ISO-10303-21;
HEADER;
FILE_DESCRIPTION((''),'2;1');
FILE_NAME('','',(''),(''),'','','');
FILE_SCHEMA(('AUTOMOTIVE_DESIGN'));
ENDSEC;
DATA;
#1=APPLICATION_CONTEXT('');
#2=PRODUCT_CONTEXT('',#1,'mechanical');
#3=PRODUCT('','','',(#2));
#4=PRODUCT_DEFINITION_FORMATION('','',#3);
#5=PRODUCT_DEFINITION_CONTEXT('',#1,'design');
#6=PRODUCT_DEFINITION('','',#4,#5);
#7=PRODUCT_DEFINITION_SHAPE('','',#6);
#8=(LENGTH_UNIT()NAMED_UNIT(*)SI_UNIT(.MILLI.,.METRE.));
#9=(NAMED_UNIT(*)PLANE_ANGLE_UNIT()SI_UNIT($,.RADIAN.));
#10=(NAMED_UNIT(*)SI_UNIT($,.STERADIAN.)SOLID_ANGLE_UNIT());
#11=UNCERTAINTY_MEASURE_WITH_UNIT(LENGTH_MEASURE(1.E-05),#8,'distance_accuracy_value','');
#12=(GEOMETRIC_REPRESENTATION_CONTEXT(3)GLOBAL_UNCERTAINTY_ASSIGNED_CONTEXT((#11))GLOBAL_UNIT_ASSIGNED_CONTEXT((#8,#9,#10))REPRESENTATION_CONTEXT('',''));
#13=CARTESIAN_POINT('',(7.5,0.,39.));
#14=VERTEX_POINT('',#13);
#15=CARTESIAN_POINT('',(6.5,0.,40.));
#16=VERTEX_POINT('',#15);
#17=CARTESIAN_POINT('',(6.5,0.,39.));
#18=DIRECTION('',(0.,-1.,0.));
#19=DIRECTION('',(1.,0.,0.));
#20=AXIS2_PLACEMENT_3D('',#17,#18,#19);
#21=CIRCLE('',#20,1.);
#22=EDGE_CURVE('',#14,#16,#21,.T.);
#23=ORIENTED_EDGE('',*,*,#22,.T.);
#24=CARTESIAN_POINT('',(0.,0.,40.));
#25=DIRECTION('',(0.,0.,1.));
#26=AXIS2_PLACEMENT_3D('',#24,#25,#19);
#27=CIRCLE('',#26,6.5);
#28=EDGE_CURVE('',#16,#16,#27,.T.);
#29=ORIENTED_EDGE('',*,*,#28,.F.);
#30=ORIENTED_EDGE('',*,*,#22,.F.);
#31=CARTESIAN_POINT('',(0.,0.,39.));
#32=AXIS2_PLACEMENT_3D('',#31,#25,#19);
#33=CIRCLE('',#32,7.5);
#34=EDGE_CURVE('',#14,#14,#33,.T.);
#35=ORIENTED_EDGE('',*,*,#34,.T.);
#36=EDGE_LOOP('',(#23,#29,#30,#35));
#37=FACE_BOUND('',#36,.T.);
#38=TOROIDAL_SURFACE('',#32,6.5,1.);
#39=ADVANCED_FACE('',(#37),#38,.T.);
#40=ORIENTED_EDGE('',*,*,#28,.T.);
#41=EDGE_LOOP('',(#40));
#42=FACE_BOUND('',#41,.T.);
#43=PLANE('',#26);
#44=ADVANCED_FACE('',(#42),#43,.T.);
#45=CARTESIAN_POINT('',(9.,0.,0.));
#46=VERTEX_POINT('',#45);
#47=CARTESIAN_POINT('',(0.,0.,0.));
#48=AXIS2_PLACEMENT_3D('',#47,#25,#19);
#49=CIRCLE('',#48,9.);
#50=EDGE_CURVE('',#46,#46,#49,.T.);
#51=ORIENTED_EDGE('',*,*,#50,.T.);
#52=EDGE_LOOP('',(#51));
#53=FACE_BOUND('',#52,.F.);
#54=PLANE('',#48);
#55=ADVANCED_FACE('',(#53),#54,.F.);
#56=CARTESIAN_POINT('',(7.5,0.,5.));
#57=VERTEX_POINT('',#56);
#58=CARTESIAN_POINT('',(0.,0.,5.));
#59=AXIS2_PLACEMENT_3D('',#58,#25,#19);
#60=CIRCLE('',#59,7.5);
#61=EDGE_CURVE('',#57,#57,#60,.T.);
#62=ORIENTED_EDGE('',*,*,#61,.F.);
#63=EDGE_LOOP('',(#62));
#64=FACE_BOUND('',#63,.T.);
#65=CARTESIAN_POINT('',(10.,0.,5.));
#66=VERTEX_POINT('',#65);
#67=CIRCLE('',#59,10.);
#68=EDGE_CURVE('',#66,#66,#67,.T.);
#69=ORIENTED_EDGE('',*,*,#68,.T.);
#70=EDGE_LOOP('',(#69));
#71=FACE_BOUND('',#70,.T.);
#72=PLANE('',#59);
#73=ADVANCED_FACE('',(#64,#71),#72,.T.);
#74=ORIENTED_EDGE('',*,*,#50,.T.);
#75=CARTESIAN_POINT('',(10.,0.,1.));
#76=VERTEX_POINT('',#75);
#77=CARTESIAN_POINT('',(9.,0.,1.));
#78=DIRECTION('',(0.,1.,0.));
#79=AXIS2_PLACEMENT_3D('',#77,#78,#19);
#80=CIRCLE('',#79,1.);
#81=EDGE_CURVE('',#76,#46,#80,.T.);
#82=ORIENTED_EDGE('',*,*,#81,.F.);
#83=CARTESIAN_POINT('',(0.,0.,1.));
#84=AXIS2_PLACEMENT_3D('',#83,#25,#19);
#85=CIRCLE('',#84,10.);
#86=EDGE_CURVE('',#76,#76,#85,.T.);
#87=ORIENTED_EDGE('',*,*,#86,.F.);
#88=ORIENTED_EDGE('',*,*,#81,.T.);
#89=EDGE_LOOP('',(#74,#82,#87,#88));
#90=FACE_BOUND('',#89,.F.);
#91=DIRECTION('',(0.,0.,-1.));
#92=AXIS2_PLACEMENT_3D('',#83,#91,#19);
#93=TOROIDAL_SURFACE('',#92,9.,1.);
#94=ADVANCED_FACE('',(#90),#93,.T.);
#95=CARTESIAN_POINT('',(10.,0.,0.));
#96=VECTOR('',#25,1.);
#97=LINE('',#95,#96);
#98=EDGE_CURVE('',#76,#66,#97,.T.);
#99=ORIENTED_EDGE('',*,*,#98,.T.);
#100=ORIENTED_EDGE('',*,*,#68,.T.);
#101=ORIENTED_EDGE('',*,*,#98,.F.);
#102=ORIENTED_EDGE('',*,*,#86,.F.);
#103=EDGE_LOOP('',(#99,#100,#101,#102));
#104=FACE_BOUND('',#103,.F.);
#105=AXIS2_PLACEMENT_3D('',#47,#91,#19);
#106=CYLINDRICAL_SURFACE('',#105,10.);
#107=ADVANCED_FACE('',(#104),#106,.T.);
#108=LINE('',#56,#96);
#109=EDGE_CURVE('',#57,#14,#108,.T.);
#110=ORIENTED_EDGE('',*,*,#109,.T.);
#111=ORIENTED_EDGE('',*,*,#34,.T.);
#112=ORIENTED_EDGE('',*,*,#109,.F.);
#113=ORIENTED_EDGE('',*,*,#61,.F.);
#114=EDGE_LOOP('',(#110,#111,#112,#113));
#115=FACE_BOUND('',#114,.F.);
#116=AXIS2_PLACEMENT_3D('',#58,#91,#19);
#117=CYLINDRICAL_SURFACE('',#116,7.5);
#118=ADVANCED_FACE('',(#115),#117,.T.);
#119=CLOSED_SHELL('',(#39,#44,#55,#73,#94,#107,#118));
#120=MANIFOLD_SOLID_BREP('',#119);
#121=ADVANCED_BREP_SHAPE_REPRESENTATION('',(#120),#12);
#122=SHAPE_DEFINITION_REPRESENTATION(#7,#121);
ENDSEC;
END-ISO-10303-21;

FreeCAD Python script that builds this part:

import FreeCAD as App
import Part
import Sketcher


def edges_at(feature, points):
    """Names of the edges that pass closest to the given points."""
    edges = feature.Shape.Edges
    near = lambda p: min(range(len(edges)), key=lambda i: edges[i].distToShape(Part.Vertex(*p))[0])
    return sorted({f"Edge{near(p) + 1}" for p in points})

doc = App.newDocument("Part")
params = doc.addObject("Spreadsheet::Sheet", "Params")
for row, (alias, value) in enumerate([
    ("sketch1_diameter", "20 mm"),
    ("pad1_length", "5 mm"),
    ("sketch2_diameter", "15 mm"),
    ("pad2_length", "35 mm"),
    ("fillet_radius", "1 mm"),
    ("fillet2_radius", "1 mm"),
], start=1):
    params.set(f"A{row}", alias)
    params.set(f"B{row}", "=" + value)
    params.setAlias(f"B{row}", alias)

body = doc.addObject("PartDesign::Body", "Body")

sketch1 = body.newObject("Sketcher::SketchObject", "Sketch")
sketch1.AttachmentSupport = (doc.getObject("XY_Plane"), [""])
sketch1.MapMode = "FlatFace"
sketch1.addGeometry(Part.Circle(App.Vector(0, 0, 0), App.Vector(0, 0, 1), 10), False)
sketch1.addConstraint([
    Sketcher.Constraint("Coincident", 0, 3, -1, 1),
    Sketcher.Constraint("Diameter", 0, 20.0),
])
sketch1.setExpression("Constraints[1]", "Params.sketch1_diameter")
pad1 = body.newObject("PartDesign::Pad", "Pad")
pad1.Profile = sketch1
pad1.setExpression("Length", "Params.pad1_length")

sketch2 = body.newObject("Sketcher::SketchObject", "Sketch001")
sketch2.AttachmentSupport = (doc.getObject("XY_Plane"), [""])
sketch2.MapMode = "FlatFace"
sketch2.AttachmentOffset = App.Placement(App.Vector(0, 0, 5), App.Rotation())
sketch2.addGeometry(Part.Circle(App.Vector(0, 0, 0), App.Vector(0, 0, 1), 7.5), False)
sketch2.addConstraint([
    Sketcher.Constraint("Coincident", 0, 3, -1, 1),
    Sketcher.Constraint("Diameter", 0, 15.0),
])
sketch2.setExpression("Constraints[1]", "Params.sketch2_diameter")
pad2 = body.newObject("PartDesign::Pad", "Pad001")
pad2.Profile = sketch2
pad2.setExpression("Length", "Params.pad2_length")
doc.recompute()

fillet = body.newObject("PartDesign::Fillet", "Fillet")
fillet.Base = (pad2, edges_at(pad2, [(-7.5, 0, 40)]))
fillet.setExpression("Radius", "Params.fillet_radius")
doc.recompute()

fillet2 = body.newObject("PartDesign::Fillet", "Fillet001")
fillet2.Base = (fillet, edges_at(fillet, [(-10, 0, 0)]))
fillet2.setExpression("Radius", "Params.fillet2_radius")

doc.recompute()
